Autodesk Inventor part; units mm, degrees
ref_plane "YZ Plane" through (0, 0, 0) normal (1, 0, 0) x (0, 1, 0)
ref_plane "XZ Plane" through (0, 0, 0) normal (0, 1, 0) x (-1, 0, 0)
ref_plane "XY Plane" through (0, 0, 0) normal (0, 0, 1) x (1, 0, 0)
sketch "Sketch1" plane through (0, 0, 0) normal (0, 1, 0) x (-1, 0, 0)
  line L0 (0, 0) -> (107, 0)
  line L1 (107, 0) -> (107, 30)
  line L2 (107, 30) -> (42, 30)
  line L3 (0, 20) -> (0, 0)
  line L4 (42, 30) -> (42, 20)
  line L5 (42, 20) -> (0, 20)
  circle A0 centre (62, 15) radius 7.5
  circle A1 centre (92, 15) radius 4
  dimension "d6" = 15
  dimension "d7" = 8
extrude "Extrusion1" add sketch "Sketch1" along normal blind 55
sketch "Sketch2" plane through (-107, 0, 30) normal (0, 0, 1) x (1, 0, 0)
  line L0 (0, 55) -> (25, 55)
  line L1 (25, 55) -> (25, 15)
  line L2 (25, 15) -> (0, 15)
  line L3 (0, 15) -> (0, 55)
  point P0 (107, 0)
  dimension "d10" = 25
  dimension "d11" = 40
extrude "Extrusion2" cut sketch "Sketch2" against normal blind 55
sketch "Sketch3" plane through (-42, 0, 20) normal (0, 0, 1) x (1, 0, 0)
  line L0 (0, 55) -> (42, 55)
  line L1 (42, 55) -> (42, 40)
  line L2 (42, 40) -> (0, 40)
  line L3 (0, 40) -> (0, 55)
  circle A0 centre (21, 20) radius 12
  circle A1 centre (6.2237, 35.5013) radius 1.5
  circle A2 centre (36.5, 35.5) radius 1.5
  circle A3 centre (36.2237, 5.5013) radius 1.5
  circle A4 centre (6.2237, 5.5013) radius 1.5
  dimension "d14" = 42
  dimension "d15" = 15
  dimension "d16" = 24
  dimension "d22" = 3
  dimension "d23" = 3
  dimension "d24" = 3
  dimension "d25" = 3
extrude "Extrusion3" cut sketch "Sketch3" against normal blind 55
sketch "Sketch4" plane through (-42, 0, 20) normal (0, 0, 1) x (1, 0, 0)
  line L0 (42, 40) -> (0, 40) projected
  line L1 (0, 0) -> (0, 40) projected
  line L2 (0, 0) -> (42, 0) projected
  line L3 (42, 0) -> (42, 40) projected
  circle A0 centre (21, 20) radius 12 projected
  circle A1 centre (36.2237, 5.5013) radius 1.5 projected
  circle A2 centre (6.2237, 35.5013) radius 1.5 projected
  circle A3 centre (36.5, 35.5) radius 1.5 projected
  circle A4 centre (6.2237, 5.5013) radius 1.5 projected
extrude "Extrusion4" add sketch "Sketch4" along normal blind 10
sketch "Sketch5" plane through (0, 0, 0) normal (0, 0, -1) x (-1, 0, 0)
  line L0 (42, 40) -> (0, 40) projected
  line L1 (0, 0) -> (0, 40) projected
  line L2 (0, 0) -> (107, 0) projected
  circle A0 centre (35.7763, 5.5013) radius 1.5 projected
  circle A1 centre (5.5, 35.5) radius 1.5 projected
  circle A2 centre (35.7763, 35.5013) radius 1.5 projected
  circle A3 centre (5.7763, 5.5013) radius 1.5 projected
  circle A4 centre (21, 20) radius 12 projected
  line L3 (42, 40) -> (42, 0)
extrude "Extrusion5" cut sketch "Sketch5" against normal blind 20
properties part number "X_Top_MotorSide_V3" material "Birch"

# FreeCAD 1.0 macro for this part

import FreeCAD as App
import Part
import Sketcher
from FreeCAD import Vector


def add_polygon(sketch, points):
    """Adds a closed chain of lines whose ends are joined by coincident constraints."""
    first, n = sketch.GeometryCount, len(points)
    for a, b in zip(points, points[1:] + points[:1]):
        sketch.addGeometry(Part.LineSegment(App.Vector(*a, 0), App.Vector(*b, 0)), False)
    for i in range(n):
        sketch.addConstraint(Sketcher.Constraint("Coincident", first + i, 2, first + (i + 1) % n, 1))

doc = App.newDocument("Part")
params = doc.addObject("Spreadsheet::Sheet", "Params")
for row, (alias, value) in enumerate([
    ("sketch1_diameter", "15 mm"),
    ("sketch1_diameter2", "8 mm"),
    ("sketch1_width", "107 mm"),
    ("sketch1_width2", "65 mm"),
    ("sketch1_height", "20 mm"),
    ("pad1_length", "55 mm"),
    ("sketch2_width", "25 mm"),
    ("sketch2_height", "40 mm"),
    ("pocket1_length", "55 mm"),
    ("sketch3_diameter", "24 mm"),
    ("sketch3_diameter2", "3 mm"),
    ("sketch3_width", "42 mm"),
    ("sketch3_height", "15 mm"),
    ("pocket2_length", "55 mm"),
    ("sketch4_diameter", "3 mm"),
    ("sketch4_diameter2", "24 mm"),
    ("sketch4_width", "42 mm"),
    ("sketch4_height", "40 mm"),
    ("pad2_length", "10 mm"),
    ("sketch5_diameter", "3 mm"),
    ("sketch5_diameter2", "24 mm"),
    ("sketch5_width", "42 mm"),
    ("sketch5_height", "40 mm"),
    ("pocket3_length", "20 mm"),
], start=1):
    params.set(f"A{row}", alias)
    params.set(f"B{row}", "=" + value)
    params.setAlias(f"B{row}", alias)

body = doc.addObject("PartDesign::Body", "Body")

# Sketch on XZ plane
sketch1 = body.newObject("Sketcher::SketchObject", "Sketch")
sketch1.AttachmentSupport = (doc.getObject("XZ_Plane"), [""])
sketch1.MapMode = "FlatFace"
add_polygon(sketch1, [(0, 20), (0, 0), (-107, 0), (-107, 30), (-42, 30), (-42, 20)])  # lines 0-5
sketch1.addGeometry(Part.Circle(Vector(-62, 15, 0), Vector(0, 0, 1), 7.5), False)  # 6
sketch1.addGeometry(Part.Circle(Vector(-92, 15, 0), Vector(0, 0, 1), 4), False)  # 7
sketch1.addConstraint([
    Sketcher.Constraint("Vertical", 0),
    Sketcher.Constraint("Horizontal", 1),
    Sketcher.Constraint("Vertical", 2),
    Sketcher.Constraint("Horizontal", 3),
    Sketcher.Constraint("Vertical", 4),
    Sketcher.Constraint("Horizontal", 5),
    Sketcher.Constraint("Coincident", 0, 2, -1, 1),
    Sketcher.Constraint("Horizontal", 6, 3, 7, 3),
    Sketcher.Constraint("Diameter", 6, 15.0),
    Sketcher.Constraint("Diameter", 7, 8.0),
    Sketcher.Constraint("DistanceY", -1, 1, 6, 3, 15.0),
    Sketcher.Constraint("DistanceX", 1, 2, 7, 3, 15.0),
    Sketcher.Constraint("DistanceY", 7, 3, 2, 2, 15.0),
    Sketcher.Constraint("DistanceX", 1, 2, 1, 1, 107.0),
    Sketcher.Constraint("DistanceX", 3, 1, 3, 2, 65.0),
    Sketcher.Constraint("DistanceY", 0, 2, 0, 1, 20.0),
    Sketcher.Constraint("DistanceX", 6, 3, -1, 1, 62.0),
])
sketch1.setExpression("Constraints[14]", "Params.sketch1_diameter")
sketch1.setExpression("Constraints[15]", "Params.sketch1_diameter2")
sketch1.setExpression("Constraints[19]", "Params.sketch1_width")
sketch1.setExpression("Constraints[20]", "Params.sketch1_width2")
sketch1.setExpression("Constraints[21]", "Params.sketch1_height")
pad1 = body.newObject("PartDesign::Pad", "Pad")
pad1.Profile = sketch1
pad1.setExpression("Length", "Params.pad1_length")
pad1.Reversed = True

# Sketch on XY plane
sketch2 = body.newObject("Sketcher::SketchObject", "Sketch001")
sketch2.AttachmentSupport = (doc.getObject("XY_Plane"), [""])
sketch2.MapMode = "FlatFace"
sketch2.AttachmentOffset = App.Placement(Vector(0, 0, 30), App.Rotation())
add_polygon(sketch2, [(-82, 55), (-107, 55), (-107, 15), (-82, 15)])  # lines 0-3
sketch2.addConstraint([
    Sketcher.Constraint("Horizontal", 0),
    Sketcher.Constraint("Vertical", 1),
    Sketcher.Constraint("Horizontal", 2),
    Sketcher.Constraint("Vertical", 3),
    Sketcher.Constraint("DistanceX", 0, 2, 0, 1, 25.0),
    Sketcher.Constraint("DistanceY", 1, 2, 1, 1, 40.0),
    Sketcher.Constraint("DistanceX", 0, 2, -1, 1, 107.0),
    Sketcher.Constraint("DistanceY", -1, 1, 0, 2, 55.0),
])
sketch2.setExpression("Constraints[8]", "Params.sketch2_width")
sketch2.setExpression("Constraints[9]", "Params.sketch2_height")
pocket1 = body.newObject("PartDesign::Pocket", "Pocket")
pocket1.Profile = sketch2
pocket1.setExpression("Length", "Params.pocket1_length")

# Sketch on XY plane
sketch3 = body.newObject("Sketcher::SketchObject", "Sketch002")
sketch3.AttachmentSupport = (doc.getObject("XY_Plane"), [""])
sketch3.MapMode = "FlatFace"
sketch3.AttachmentOffset = App.Placement(Vector(0, 0, 20), App.Rotation())
add_polygon(sketch3, [(0, 55), (-42, 55), (-42, 40), (0, 40)])  # lines 0-3
sketch3.addGeometry(Part.Circle(Vector(-21, 20, 0), Vector(0, 0, 1), 12), False)  # 4
sketch3.addGeometry(Part.Circle(Vector(-35.7763, 35.5013, 0), Vector(0, 0, 1), 1.5), False)  # 5
sketch3.addGeometry(Part.Circle(Vector(-5.5, 35.5, 0), Vector(0, 0, 1), 1.5), False)  # 6
sketch3.addGeometry(Part.Circle(Vector(-5.7763, 5.5013, 0), Vector(0, 0, 1), 1.5), False)  # 7
sketch3.addGeometry(Part.Circle(Vector(-35.7763, 5.5013, 0), Vector(0, 0, 1), 1.5), False)  # 8
sketch3.addConstraint([
    Sketcher.Constraint("Horizontal", 0),
    Sketcher.Constraint("Vertical", 1),
    Sketcher.Constraint("Horizontal", 2),
    Sketcher.Constraint("Vertical", 3),
    Sketcher.Constraint("Equal", 5, 6),
    Sketcher.Constraint("Equal", 6, 7),
    Sketcher.Constraint("Equal", 7, 8),
    Sketcher.Constraint("PointOnObject", 2, 2, -2),
    Sketcher.Constraint("Horizontal", 7, 3, 8, 3),
    Sketcher.Constraint("Vertical", 5, 3, 8, 3),
    Sketcher.Constraint("Diameter", 4, 24.0),
    Sketcher.Constraint("Diameter", 5, 3.0),
    Sketcher.Constraint("DistanceX", 0, 2, 0, 1, 42.0),
    Sketcher.Constraint("DistanceY", 1, 2, 1, 1, 15.0),
    Sketcher.Constraint("DistanceX", 4, 3, -1, 1, 21.0),
    Sketcher.Constraint("DistanceY", -1, 1, 4, 3, 20.0),
    Sketcher.Constraint("DistanceY", -1, 1, 0, 2, 55.0),
    Sketcher.Constraint("DistanceX", 5, 3, 7, 3, 30.0),
    Sketcher.Constraint("DistanceY", 7, 3, 5, 3, 30.0),
    Sketcher.Constraint("DistanceX", 6, 3, -1, 1, 5.5),
    Sketcher.Constraint("DistanceY", -1, 1, 6, 3, 35.5),
    Sketcher.Constraint("DistanceX", 5, 3, -1, 1, 35.7763),
    Sketcher.Constraint("DistanceY", -1, 1, 5, 3, 35.5013),
])
sketch3.setExpression("Constraints[14]", "Params.sketch3_diameter")
sketch3.setExpression("Constraints[15]", "Params.sketch3_diameter2")
sketch3.setExpression("Constraints[16]", "Params.sketch3_width")
sketch3.setExpression("Constraints[17]", "Params.sketch3_height")
pocket2 = body.newObject("PartDesign::Pocket", "Pocket001")
pocket2.Profile = sketch3
pocket2.setExpression("Length", "Params.pocket2_length")

# Sketch on XY plane
sketch4 = body.newObject("Sketcher::SketchObject", "Sketch003")
sketch4.AttachmentSupport = (doc.getObject("XY_Plane"), [""])
sketch4.MapMode = "FlatFace"
sketch4.AttachmentOffset = App.Placement(Vector(0, 0, 20), App.Rotation())
add_polygon(sketch4, [(0, 0), (0, 40), (-42, 40), (-42, 0)])  # lines 0-3
sketch4.addGeometry(Part.Circle(Vector(-35.7763, 5.5013, 0), Vector(0, 0, 1), 1.5), False)  # 4
sketch4.addGeometry(Part.Circle(Vector(-5.7763, 5.5013, 0), Vector(0, 0, 1), 1.5), False)  # 5
sketch4.addGeometry(Part.Circle(Vector(-35.7763, 35.5013, 0), Vector(0, 0, 1), 1.5), False)  # 6
sketch4.addGeometry(Part.Circle(Vector(-21, 20, 0), Vector(0, 0, 1), 12), False)  # 7
sketch4.addGeometry(Part.Circle(Vector(-5.5, 35.5, 0), Vector(0, 0, 1), 1.5), False)  # 8
sketch4.addConstraint([
    Sketcher.Constraint("Vertical", 0),
    Sketcher.Constraint("Horizontal", 1),
    Sketcher.Constraint("Vertical", 2),
    Sketcher.Constraint("Horizontal", 3),
    Sketcher.Constraint("Coincident", 3, 2, -1, 1),
    Sketcher.Constraint("Equal", 4, 5),
    Sketcher.Constraint("Equal", 5, 6),
    Sketcher.Constraint("Equal", 6, 8),
    Sketcher.Constraint("Horizontal", 4, 3, 5, 3),
    Sketcher.Constraint("Vertical", 4, 3, 6, 3),
    Sketcher.Constraint("Diameter", 4, 3.0),
    Sketcher.Constraint("Diameter", 7, 24.0),
    Sketcher.Constraint("DistanceX", 1, 2, 1, 1, 42.0),
    Sketcher.Constraint("DistanceY", 0, 1, 0, 2, 40.0),
    Sketcher.Constraint("DistanceX", 7, 3, -1, 1, 21.0),
    Sketcher.Constraint("DistanceY", -1, 1, 7, 3, 20.0),
    Sketcher.Constraint("DistanceX", 4, 3, 5, 3, 30.0),
    Sketcher.Constraint("DistanceY", 4, 3, 6, 3, 30.0),
    Sketcher.Constraint("DistanceX", 8, 3, -1, 1, 5.5),
    Sketcher.Constraint("DistanceY", -1, 1, 8, 3, 35.5),
    Sketcher.Constraint("DistanceX", 4, 3, -1, 1, 35.7763),
    Sketcher.Constraint("DistanceY", -1, 1, 4, 3, 5.5013),
])
sketch4.setExpression("Constraints[14]", "Params.sketch4_diameter")
sketch4.setExpression("Constraints[15]", "Params.sketch4_diameter2")
sketch4.setExpression("Constraints[16]", "Params.sketch4_width")
sketch4.setExpression("Constraints[17]", "Params.sketch4_height")
pad2 = body.newObject("PartDesign::Pad", "Pad001")
pad2.Profile = sketch4
pad2.setExpression("Length", "Params.pad2_length")

# Sketch on XY plane
sketch5 = body.newObject("Sketcher::SketchObject", "Sketch004")
sketch5.AttachmentSupport = (doc.getObject("XY_Plane"), [""])
sketch5.MapMode = "FlatFace"
add_polygon(sketch5, [(-42, 0), (-42, 40), (0, 40), (0, 0)])  # lines 0-3
sketch5.addGeometry(Part.Circle(Vector(-5.7763, 5.5013, 0), Vector(0, 0, 1), 1.5), False)  # 4
sketch5.addGeometry(Part.Circle(Vector(-35.7763, 5.5013, 0), Vector(0, 0, 1), 1.5), False)  # 5
sketch5.addGeometry(Part.Circle(Vector(-5.5, 35.5, 0), Vector(0, 0, 1), 1.5), False)  # 6
sketch5.addGeometry(Part.Circle(Vector(-21, 20, 0), Vector(0, 0, 1), 12), False)  # 7
sketch5.addGeometry(Part.Circle(Vector(-35.7763, 35.5013, 0), Vector(0, 0, 1), 1.5), False)  # 8
sketch5.addConstraint([
    Sketcher.Constraint("Vertical", 0),
    Sketcher.Constraint("Horizontal", 1),
    Sketcher.Constraint("Vertical", 2),
    Sketcher.Constraint("Horizontal", 3),
    Sketcher.Constraint("Coincident", 2, 2, -1, 1),
    Sketcher.Constraint("Equal", 4, 5),
    Sketcher.Constraint("Equal", 5, 6),
    Sketcher.Constraint("Equal", 6, 8),
    Sketcher.Constraint("Horizontal", 4, 3, 5, 3),
    Sketcher.Constraint("Vertical", 5, 3, 8, 3),
    Sketcher.Constraint("Diameter", 4, 3.0),
    Sketcher.Constraint("Diameter", 7, 24.0),
    Sketcher.Constraint("DistanceX", 1, 1, 1, 2, 42.0),
    Sketcher.Constraint("DistanceY", 0, 1, 0, 2, 40.0),
    Sketcher.Constraint("DistanceX", 7, 3, -1, 1, 21.0),
    Sketcher.Constraint("DistanceY", -1, 1, 7, 3, 20.0),
    Sketcher.Constraint("DistanceX", 5, 3, 4, 3, 30.0),
    Sketcher.Constraint("DistanceY", 5, 3, 8, 3, 30.0),
    Sketcher.Constraint("DistanceX", 6, 3, -1, 1, 5.5),
    Sketcher.Constraint("DistanceY", -1, 1, 6, 3, 35.5),
    Sketcher.Constraint("DistanceX", 4, 3, -1, 1, 5.7763),
    Sketcher.Constraint("DistanceY", -1, 1, 4, 3, 5.5013),
])
sketch5.setExpression("Constraints[14]", "Params.sketch5_diameter")
sketch5.setExpression("Constraints[15]", "Params.sketch5_diameter2")
sketch5.setExpression("Constraints[16]", "Params.sketch5_width")
sketch5.setExpression("Constraints[17]", "Params.sketch5_height")
pocket3 = body.newObject("PartDesign::Pocket", "Pocket002")
pocket3.Profile = sketch5
pocket3.setExpression("Length", "Params.pocket3_length")
pocket3.Reversed = True

doc.recompute()
